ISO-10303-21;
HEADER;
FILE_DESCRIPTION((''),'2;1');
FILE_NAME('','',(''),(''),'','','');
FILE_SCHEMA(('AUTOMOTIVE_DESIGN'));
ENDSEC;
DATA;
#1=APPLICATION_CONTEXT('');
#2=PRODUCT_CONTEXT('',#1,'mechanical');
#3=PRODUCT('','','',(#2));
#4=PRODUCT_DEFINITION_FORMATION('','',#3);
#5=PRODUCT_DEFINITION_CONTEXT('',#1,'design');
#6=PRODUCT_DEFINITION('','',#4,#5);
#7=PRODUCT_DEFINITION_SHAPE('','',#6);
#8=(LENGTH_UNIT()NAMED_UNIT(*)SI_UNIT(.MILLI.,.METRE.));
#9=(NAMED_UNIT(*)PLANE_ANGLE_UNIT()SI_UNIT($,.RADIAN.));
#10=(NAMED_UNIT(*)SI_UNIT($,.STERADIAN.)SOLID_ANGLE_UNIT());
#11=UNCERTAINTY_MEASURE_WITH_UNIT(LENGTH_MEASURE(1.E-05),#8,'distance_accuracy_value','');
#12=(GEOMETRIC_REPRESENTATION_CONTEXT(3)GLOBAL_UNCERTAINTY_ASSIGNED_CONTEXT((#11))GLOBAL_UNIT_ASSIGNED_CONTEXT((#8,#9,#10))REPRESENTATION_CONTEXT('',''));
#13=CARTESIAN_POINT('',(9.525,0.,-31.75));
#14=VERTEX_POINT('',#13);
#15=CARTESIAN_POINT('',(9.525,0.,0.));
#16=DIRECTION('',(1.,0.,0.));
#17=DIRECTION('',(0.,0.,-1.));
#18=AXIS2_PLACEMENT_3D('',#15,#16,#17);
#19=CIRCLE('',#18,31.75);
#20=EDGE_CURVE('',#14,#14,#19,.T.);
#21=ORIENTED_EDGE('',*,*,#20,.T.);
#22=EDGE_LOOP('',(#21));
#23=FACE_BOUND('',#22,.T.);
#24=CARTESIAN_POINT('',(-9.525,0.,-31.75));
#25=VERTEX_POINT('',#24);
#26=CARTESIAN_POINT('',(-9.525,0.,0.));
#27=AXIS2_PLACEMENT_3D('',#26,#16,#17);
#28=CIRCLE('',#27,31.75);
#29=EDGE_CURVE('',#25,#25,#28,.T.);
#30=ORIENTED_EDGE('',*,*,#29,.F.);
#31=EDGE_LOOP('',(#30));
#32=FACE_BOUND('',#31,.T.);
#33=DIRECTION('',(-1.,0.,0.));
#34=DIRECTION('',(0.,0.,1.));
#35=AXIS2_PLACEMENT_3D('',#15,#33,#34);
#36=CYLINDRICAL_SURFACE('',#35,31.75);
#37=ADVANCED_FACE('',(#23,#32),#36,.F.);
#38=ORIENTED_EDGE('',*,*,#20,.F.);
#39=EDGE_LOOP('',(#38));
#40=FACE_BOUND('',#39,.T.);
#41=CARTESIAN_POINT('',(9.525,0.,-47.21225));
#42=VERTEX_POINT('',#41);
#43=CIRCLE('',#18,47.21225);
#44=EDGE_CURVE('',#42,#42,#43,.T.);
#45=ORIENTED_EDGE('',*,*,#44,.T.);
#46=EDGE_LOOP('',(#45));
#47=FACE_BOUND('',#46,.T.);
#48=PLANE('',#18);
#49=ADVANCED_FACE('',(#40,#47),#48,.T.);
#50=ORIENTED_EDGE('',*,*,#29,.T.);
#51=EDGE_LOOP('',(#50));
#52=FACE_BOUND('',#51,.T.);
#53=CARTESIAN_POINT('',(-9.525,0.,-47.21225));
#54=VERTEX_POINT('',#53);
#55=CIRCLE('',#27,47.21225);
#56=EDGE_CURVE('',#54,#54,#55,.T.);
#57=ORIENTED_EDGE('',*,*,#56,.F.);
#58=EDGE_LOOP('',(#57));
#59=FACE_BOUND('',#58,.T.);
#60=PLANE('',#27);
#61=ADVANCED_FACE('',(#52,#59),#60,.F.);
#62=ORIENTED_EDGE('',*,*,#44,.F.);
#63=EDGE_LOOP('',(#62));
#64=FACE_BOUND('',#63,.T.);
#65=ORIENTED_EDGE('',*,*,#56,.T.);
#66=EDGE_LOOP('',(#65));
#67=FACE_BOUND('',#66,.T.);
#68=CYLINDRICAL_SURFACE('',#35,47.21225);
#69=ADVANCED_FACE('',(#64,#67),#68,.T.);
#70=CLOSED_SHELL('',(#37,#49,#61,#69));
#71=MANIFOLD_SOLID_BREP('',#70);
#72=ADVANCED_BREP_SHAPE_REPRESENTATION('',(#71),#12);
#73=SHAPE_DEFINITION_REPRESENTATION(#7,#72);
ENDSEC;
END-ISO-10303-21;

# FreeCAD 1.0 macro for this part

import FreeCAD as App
import Part
import Sketcher

V = App.Vector
Q = App.Units.Quantity

doc = App.newDocument("Part")
params = doc.addObject("Spreadsheet::Sheet", "Params")
for row, (alias, value) in enumerate([
    ("sketch1_diameter", "2.5 in"),
    ("pad1_length", "0.75 in"),
], start=1):
    params.set(f"A{row}", alias)
    params.set(f"B{row}", "=" + value)
    params.setAlias(f"B{row}", alias)

body = doc.addObject("PartDesign::Body", "Body")

# Sketch on YZ plane
sketch1 = doc.addObject("Sketcher::SketchObject", "Sketch")
body.addObject(sketch1)
sketch1.AttachmentSupport = (doc.YZ_Plane, [""])
sketch1.MapMode = "FlatFace"
sketch1.addGeometry([
    Part.Circle(V(0, 0, 0), V(0, 0, 1), 47),
    Part.Circle(V(0, 0, 0), V(0, 0, 1), 32),
], False)
sketch1.addConstraint([
    Sketcher.Constraint("Coincident", 0, 3, -1, 1),
    Sketcher.Constraint("Coincident", 1, 3, -1, 1),
    Sketcher.Constraint("Diameter", 1, Q("2.5 in")),
    Sketcher.Constraint("Diameter", 0, Q("3.7175 in")),
])
sketch1.setExpression("Constraints[2]", "Params.sketch1_diameter")
pad1 = doc.addObject("PartDesign::Pad", "Pad")
body.addObject(pad1)
pad1.Profile = sketch1
pad1.setExpression("Length", "Params.pad1_length")
pad1.Midplane = True

doc.recompute()
